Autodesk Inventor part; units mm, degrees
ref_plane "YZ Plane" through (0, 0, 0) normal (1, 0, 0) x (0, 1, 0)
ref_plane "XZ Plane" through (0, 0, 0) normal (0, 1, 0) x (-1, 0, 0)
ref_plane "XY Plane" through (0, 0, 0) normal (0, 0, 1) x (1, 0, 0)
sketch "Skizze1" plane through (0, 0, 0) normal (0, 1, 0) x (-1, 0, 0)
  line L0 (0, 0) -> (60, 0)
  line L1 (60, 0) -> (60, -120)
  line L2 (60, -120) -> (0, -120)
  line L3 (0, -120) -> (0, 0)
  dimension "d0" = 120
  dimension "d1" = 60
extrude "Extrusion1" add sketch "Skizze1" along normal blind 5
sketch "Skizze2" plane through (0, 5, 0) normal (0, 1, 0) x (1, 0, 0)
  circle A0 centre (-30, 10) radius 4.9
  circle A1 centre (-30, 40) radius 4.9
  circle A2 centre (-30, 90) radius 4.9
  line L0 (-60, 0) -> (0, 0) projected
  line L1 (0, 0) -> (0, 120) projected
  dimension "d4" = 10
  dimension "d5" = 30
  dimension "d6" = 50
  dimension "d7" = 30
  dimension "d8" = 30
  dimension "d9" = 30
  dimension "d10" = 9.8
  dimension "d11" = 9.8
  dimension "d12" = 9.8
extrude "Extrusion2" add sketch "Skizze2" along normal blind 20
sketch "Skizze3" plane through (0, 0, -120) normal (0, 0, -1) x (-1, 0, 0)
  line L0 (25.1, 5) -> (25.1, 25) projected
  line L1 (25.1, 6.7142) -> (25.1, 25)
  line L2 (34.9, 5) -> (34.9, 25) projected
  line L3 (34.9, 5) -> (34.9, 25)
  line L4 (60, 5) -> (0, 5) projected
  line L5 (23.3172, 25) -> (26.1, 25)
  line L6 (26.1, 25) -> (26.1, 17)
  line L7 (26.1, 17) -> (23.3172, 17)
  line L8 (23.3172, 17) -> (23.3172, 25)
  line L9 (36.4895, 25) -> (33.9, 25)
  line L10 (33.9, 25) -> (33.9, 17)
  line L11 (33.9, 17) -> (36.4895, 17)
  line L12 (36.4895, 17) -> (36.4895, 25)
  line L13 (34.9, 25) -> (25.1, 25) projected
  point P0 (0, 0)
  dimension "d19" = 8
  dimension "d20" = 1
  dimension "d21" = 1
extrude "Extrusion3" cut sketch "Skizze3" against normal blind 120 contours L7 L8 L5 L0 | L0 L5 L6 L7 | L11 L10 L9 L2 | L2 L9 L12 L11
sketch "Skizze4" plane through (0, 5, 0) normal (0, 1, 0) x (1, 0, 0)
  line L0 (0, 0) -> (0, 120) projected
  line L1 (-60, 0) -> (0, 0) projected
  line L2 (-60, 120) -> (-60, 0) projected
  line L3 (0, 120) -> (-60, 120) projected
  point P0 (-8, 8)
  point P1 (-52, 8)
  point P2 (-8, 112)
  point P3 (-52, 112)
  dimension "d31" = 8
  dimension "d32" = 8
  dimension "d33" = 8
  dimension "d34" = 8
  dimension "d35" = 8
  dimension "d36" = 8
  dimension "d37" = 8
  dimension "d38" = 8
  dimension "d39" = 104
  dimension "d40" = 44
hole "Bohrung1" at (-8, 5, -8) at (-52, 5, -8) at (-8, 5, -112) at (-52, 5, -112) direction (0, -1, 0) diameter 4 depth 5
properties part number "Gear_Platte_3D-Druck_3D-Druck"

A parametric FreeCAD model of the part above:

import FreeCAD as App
import Part
import Sketcher
from FreeCAD import Vector
Q = App.Units.Quantity


def add_polygon(sketch, points):
    """Adds a closed chain of lines whose ends are joined by coincident constraints."""
    first, n = sketch.GeometryCount, len(points)
    for a, b in zip(points, points[1:] + points[:1]):
        sketch.addGeometry(Part.LineSegment(App.Vector(*a, 0), App.Vector(*b, 0)), False)
    for i in range(n):
        sketch.addConstraint(Sketcher.Constraint("Coincident", first + i, 2, first + (i + 1) % n, 1))

doc = App.newDocument("Part")
body = doc.addObject("PartDesign::Body", "Body")

# Sketch on XZ plane
sketch1 = doc.addObject("Sketcher::SketchObject", "Sketch")
body.addObject(sketch1)
sketch1.AttachmentSupport = (doc.XZ_Plane, [""])
sketch1.MapMode = "FlatFace"
add_polygon(sketch1, [(-60, 0), (0, 0), (0, -120), (-60, -120)])  # lines 0-3
sketch1.addConstraint([
    Sketcher.Constraint("Horizontal", 0),
    Sketcher.Constraint("Vertical", 1),
    Sketcher.Constraint("Horizontal", 2),
    Sketcher.Constraint("Vertical", 3),
    Sketcher.Constraint("Coincident", 0, 2, -1, 1),
    Sketcher.Constraint("DistanceX", 0, 1, 0, 2, Q("60 mm")),
    Sketcher.Constraint("DistanceY", 1, 2, 1, 1, Q("120 mm")),
])
pad1 = doc.addObject("PartDesign::Pad", "Pad")
body.addObject(pad1)
pad1.Profile = sketch1
pad1.Length = 5
pad1.Reversed = True

# Sketch on XZ plane
sketch2 = doc.addObject("Sketcher::SketchObject", "Sketch001")
body.addObject(sketch2)
sketch2.AttachmentSupport = (doc.XZ_Plane, [""])
sketch2.MapMode = "FlatFace"
sketch2.AttachmentOffset = App.Placement(Vector(0, 0, -5), App.Rotation())
sketch2.addGeometry([
    Part.Circle(Vector(-30, -10, 0), Vector(0, 0, 1), 4.9),
    Part.Circle(Vector(-30, -40, 0), Vector(0, 0, 1), 4.9),
    Part.Circle(Vector(-30, -90, 0), Vector(0, 0, 1), 4.9),
], False)
sketch2.addConstraint([
    Sketcher.Constraint("Equal", 0, 1),
    Sketcher.Constraint("Equal", 1, 2),
    Sketcher.Constraint("Vertical", 0, 3, 1, 3),
    Sketcher.Constraint("Vertical", 1, 3, 2, 3),
    Sketcher.Constraint("Diameter", 0, Q("9.8 mm")),
    Sketcher.Constraint("DistanceX", 0, 3, -1, 1, Q("30 mm")),
    Sketcher.Constraint("DistanceY", 0, 3, -1, 1, Q("10 mm")),
    Sketcher.Constraint("DistanceY", 1, 3, 0, 3, Q("30 mm")),
    Sketcher.Constraint("DistanceY", 2, 3, 1, 3, Q("50 mm")),
])
pad2 = doc.addObject("PartDesign::Pad", "Pad001")
body.addObject(pad2)
pad2.Profile = sketch2
pad2.Length = 20
pad2.Reversed = True

# Sketch on XY plane
sketch3 = doc.addObject("Sketcher::SketchObject", "Sketch002")
body.addObject(sketch3)
sketch3.AttachmentSupport = (doc.XY_Plane, [""])
sketch3.MapMode = "FlatFace"
sketch3.AttachmentOffset = App.Placement(Vector(0, 0, -120), App.Rotation())
add_polygon(sketch3, [(-23.3172, 17), (-26.1, 17), (-26.1, 25), (-23.3172, 25)])  # lines 0-3
add_polygon(sketch3, [(-33.9, 17), (-36.4895, 17), (-36.4895, 25), (-33.9, 25)])  # lines 4-7
sketch3.addConstraint([
    Sketcher.Constraint("Horizontal", 0),
    Sketcher.Constraint("Vertical", 1),
    Sketcher.Constraint("Horizontal", 2),
    Sketcher.Constraint("Vertical", 3),
    Sketcher.Constraint("Horizontal", 4),
    Sketcher.Constraint("Vertical", 5),
    Sketcher.Constraint("Horizontal", 6),
    Sketcher.Constraint("Vertical", 7),
    Sketcher.Constraint("Horizontal", 3, 2, 4, 2),
    Sketcher.Constraint("Horizontal", 2, 2, 5, 2),
    Sketcher.Constraint("DistanceY", 1, 1, 1, 2, Q("8 mm")),
    Sketcher.Constraint("DistanceY", -1, 1, 0, 2, Q("17 mm")),
    Sketcher.Constraint("DistanceX", 0, 2, -1, 1, Q("26.1 mm")),
    Sketcher.Constraint("DistanceX", 6, 2, -1, 1, Q("33.9 mm")),
    Sketcher.Constraint("DistanceX", 0, 2, 0, 1, Q("2.7828 mm")),
    Sketcher.Constraint("DistanceX", 4, 2, 4, 1, Q("2.5895 mm")),
])
pocket1 = doc.addObject("PartDesign::Pocket", "Pocket")
body.addObject(pocket1)
pocket1.Profile = sketch3
pocket1.Length = 120
pocket1.Reversed = True

# Sketch on XZ plane
sketch4 = doc.addObject("Sketcher::SketchObject", "Sketch003")
body.addObject(sketch4)
sketch4.AttachmentSupport = (doc.XZ_Plane, [""])
sketch4.MapMode = "FlatFace"
sketch4.AttachmentOffset = App.Placement(Vector(0, 0, -5), App.Rotation())
sketch4.addGeometry([
    Part.Circle(Vector(-8, -8, 0), Vector(0, 0, 1), 2),
    Part.Circle(Vector(-52, -8, 0), Vector(0, 0, 1), 2),
    Part.Circle(Vector(-8, -112, 0), Vector(0, 0, 1), 2),
    Part.Circle(Vector(-52, -112, 0), Vector(0, 0, 1), 2),
], False)
sketch4.addConstraint([
    Sketcher.Constraint("Equal", 0, 1),
    Sketcher.Constraint("Equal", 1, 2),
    Sketcher.Constraint("Equal", 2, 3),
    Sketcher.Constraint("Horizontal", 0, 3, 1, 3),
    Sketcher.Constraint("Horizontal", 2, 3, 3, 3),
    Sketcher.Constraint("Vertical", 0, 3, 2, 3),
    Sketcher.Constraint("Vertical", 1, 3, 3, 3),
    Sketcher.Constraint("Diameter", 0, Q("4 mm")),
    Sketcher.Constraint("DistanceX", 0, 3, -1, 1, Q("8 mm")),
    Sketcher.Constraint("DistanceY", 0, 3, -1, 1, Q("8 mm")),
    Sketcher.Constraint("DistanceX", 1, 3, -1, 1, Q("52 mm")),
    Sketcher.Constraint("DistanceY", 2, 3, -1, 1, Q("112 mm")),
])
doc.recompute()
hole = doc.addObject("PartDesign::Hole", "Hole")
body.addObject(hole)
hole.Profile = sketch4
hole.ThreadType = "None"
hole.Diameter = 4
hole.DepthType = "Dimension"
hole.Depth = 5
hole.DrillPoint = "Flat"
hole.Reversed = True

doc.recompute()
